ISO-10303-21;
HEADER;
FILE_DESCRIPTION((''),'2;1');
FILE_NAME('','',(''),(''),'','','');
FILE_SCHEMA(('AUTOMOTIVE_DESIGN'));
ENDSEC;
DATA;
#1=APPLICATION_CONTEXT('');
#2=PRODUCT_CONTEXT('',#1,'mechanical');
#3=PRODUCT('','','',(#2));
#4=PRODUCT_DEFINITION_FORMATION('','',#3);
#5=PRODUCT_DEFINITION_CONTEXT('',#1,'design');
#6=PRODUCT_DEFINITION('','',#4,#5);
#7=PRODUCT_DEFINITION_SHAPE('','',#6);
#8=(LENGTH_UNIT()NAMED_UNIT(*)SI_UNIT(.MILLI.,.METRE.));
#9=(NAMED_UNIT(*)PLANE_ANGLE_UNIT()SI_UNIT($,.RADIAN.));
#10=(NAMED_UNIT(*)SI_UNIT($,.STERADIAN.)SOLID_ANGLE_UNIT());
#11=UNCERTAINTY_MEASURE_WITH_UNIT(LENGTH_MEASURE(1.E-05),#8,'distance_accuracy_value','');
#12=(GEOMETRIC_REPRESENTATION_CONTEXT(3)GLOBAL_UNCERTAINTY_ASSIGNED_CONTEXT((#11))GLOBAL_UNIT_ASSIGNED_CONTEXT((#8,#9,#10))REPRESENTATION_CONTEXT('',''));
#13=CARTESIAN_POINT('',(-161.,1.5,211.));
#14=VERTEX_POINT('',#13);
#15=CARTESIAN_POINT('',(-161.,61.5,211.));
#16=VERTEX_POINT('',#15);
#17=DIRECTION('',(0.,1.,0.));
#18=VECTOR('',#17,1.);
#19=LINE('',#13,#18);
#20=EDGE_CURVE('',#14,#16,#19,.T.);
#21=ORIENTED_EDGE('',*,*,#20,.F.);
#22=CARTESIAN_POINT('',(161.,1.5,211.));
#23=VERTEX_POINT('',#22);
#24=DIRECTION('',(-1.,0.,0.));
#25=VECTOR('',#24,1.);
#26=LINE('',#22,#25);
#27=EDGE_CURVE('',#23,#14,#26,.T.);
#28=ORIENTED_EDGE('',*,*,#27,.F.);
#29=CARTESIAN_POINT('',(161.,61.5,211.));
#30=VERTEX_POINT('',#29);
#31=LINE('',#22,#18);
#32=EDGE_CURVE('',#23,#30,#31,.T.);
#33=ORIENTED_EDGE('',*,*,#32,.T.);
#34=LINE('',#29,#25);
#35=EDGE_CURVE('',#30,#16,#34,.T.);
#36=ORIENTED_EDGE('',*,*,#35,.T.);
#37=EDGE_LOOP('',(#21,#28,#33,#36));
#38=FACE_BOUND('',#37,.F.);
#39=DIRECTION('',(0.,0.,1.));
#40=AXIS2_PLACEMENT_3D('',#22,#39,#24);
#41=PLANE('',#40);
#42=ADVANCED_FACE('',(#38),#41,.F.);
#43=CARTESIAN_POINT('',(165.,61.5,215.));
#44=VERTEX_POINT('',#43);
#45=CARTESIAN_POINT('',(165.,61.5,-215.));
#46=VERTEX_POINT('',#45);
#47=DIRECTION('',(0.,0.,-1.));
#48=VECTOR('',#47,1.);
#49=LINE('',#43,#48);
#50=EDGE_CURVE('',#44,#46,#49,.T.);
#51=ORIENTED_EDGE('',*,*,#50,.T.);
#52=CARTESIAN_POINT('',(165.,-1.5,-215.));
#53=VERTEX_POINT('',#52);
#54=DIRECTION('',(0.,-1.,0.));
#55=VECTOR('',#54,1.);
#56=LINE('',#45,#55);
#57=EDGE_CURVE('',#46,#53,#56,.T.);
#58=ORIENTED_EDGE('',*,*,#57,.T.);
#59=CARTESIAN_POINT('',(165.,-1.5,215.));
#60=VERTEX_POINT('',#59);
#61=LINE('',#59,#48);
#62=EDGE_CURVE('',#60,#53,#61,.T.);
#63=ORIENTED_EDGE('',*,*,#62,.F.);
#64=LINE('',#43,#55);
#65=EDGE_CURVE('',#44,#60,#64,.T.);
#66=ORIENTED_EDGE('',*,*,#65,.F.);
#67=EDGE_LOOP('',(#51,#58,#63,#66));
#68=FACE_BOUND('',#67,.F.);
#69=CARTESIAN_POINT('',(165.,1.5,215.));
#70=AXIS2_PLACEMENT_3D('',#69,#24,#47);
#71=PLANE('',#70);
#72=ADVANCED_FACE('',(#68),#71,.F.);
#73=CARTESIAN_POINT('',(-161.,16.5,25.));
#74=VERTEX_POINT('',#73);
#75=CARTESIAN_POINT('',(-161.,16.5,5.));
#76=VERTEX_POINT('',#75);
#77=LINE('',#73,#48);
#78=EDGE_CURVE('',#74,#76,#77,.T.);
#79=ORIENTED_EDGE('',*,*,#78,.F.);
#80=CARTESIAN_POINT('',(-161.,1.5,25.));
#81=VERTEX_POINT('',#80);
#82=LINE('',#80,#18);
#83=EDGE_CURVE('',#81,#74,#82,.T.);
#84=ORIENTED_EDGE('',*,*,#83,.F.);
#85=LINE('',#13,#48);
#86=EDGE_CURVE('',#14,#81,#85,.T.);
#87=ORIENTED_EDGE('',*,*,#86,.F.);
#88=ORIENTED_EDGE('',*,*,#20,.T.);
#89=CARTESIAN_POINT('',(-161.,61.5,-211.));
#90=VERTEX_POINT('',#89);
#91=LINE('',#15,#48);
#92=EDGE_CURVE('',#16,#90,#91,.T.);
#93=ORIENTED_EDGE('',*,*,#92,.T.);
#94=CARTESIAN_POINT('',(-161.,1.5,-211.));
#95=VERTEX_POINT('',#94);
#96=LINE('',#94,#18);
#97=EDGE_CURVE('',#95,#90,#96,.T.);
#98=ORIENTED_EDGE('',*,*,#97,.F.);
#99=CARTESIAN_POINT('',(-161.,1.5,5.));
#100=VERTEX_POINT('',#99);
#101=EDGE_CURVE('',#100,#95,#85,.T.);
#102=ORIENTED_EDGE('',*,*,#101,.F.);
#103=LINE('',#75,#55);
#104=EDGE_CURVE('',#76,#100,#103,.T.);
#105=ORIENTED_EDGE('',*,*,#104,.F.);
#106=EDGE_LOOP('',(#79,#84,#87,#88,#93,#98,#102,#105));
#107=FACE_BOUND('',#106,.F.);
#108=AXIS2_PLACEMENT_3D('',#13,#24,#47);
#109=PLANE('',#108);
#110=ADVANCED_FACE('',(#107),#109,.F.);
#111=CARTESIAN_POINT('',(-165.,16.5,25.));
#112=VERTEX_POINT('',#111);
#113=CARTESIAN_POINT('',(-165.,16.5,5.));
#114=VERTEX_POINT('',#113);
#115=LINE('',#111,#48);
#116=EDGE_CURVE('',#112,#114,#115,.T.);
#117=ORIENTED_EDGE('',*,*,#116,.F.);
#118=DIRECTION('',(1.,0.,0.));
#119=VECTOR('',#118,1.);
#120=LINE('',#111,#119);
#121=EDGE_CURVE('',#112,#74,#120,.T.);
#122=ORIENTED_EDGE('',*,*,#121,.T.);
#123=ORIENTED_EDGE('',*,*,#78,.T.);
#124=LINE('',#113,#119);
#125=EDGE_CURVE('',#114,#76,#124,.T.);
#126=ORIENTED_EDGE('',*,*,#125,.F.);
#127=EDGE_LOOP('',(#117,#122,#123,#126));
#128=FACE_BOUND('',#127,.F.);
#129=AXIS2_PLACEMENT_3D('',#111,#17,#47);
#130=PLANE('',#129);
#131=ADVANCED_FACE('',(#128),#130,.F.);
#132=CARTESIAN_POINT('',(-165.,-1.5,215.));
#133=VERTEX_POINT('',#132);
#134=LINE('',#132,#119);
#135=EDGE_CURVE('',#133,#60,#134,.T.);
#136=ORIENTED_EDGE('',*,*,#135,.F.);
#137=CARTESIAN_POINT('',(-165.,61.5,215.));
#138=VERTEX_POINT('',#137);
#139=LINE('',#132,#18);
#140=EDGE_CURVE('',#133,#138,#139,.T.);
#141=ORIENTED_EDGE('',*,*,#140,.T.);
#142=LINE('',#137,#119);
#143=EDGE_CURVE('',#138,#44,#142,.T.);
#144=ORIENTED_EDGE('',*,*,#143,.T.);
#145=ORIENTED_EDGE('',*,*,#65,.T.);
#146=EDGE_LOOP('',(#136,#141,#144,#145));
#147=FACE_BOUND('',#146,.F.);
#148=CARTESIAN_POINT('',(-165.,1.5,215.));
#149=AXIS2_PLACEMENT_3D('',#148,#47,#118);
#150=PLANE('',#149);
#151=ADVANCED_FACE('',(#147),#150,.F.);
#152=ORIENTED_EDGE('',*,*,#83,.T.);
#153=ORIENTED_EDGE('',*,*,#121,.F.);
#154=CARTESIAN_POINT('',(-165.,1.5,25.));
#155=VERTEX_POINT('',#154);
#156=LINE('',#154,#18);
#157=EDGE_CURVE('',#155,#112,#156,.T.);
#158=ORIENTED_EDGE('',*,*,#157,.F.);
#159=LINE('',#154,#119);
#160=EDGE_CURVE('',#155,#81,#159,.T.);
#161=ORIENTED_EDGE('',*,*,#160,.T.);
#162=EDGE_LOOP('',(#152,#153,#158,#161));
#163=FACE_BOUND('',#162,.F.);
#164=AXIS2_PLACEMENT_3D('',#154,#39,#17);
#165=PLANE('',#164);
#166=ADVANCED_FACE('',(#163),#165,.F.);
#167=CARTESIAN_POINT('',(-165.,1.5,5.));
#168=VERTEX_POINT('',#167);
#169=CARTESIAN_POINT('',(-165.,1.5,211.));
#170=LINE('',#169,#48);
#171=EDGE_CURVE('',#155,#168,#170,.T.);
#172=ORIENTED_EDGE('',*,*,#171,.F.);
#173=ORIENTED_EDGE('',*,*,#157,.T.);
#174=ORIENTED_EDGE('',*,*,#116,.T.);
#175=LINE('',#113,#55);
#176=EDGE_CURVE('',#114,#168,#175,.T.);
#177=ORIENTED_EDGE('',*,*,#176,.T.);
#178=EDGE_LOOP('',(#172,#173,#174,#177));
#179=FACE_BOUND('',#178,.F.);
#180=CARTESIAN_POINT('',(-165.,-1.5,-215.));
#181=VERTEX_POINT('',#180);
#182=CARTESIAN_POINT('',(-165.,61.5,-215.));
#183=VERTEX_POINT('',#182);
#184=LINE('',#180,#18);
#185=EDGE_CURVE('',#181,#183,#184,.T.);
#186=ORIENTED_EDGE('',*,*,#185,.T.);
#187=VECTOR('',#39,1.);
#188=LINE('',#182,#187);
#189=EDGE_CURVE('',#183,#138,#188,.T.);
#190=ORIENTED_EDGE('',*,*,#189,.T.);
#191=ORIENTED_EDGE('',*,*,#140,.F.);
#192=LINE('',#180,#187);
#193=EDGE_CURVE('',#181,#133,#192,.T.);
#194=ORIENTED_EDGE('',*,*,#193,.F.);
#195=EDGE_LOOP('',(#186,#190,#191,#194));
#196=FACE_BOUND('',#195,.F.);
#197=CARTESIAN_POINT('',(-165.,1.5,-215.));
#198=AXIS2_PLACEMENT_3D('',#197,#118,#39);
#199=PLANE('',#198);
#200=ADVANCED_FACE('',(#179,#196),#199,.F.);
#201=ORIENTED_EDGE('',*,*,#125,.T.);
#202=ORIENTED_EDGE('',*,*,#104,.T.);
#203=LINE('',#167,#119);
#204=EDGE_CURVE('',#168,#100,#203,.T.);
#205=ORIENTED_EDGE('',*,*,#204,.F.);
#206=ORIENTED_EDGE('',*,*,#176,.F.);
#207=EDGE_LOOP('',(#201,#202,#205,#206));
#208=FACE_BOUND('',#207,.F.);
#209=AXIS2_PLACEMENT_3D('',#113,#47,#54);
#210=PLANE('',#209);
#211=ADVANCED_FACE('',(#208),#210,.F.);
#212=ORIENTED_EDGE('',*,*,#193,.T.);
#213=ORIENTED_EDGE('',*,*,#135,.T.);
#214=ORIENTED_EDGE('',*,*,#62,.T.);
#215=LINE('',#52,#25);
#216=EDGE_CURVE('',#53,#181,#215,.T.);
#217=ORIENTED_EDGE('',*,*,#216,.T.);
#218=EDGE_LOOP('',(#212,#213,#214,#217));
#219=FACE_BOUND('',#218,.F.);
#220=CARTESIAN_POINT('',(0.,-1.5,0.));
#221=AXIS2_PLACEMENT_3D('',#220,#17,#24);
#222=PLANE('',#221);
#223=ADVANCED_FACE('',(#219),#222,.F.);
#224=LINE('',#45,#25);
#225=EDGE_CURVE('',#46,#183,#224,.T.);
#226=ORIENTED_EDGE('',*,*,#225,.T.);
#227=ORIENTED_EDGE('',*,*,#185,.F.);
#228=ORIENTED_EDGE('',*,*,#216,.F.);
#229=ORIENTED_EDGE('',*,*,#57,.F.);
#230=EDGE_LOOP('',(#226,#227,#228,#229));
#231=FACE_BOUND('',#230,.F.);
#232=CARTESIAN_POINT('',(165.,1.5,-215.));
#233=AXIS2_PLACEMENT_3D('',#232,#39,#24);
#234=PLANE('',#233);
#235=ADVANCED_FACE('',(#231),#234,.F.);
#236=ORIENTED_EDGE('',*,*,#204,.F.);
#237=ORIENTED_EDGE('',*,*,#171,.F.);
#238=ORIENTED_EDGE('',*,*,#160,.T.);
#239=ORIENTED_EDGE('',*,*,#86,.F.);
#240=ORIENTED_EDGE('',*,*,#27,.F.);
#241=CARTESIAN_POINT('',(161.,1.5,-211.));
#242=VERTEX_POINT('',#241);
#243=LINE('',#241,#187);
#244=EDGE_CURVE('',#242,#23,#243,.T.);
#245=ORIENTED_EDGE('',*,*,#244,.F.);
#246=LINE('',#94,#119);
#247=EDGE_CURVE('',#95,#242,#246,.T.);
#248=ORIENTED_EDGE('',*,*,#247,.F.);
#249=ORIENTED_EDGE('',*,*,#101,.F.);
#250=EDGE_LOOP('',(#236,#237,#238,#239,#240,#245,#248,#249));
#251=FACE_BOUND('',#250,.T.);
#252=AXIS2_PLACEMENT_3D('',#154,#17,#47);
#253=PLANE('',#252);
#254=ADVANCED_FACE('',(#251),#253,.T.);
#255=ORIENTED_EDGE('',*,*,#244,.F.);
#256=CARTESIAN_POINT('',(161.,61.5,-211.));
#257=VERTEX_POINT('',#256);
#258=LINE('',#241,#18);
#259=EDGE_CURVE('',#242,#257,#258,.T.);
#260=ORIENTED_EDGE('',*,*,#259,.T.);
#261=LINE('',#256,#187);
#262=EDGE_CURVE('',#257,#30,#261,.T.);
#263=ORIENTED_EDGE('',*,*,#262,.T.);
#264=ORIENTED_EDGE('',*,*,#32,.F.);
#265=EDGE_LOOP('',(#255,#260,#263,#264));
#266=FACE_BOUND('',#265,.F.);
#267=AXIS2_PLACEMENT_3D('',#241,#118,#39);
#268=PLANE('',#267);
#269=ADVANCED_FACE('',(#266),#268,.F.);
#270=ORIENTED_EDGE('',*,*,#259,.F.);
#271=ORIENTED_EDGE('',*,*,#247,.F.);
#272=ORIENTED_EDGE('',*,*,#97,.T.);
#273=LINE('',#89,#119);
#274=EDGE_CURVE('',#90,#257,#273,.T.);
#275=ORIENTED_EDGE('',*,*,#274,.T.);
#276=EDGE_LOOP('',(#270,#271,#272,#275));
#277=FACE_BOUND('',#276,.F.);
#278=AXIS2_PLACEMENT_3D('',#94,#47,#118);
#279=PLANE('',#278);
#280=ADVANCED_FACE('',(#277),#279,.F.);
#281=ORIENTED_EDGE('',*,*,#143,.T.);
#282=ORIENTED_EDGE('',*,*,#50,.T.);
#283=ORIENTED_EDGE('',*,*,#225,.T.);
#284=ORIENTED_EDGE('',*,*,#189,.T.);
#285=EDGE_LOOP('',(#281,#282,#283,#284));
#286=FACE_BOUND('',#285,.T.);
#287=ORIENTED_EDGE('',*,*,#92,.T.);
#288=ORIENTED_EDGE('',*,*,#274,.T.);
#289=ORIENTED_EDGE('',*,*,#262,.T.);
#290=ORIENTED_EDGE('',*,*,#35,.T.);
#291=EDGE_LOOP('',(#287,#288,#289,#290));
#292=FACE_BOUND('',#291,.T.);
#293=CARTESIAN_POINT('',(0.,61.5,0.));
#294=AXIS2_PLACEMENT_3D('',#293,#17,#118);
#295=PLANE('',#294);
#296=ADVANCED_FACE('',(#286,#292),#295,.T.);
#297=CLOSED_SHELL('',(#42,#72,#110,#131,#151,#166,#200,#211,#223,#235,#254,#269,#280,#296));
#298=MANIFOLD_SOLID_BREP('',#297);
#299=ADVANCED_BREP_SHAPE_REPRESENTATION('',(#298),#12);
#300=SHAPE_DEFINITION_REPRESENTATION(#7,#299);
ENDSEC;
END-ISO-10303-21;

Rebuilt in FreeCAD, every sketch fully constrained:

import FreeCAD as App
import Part
import Sketcher
from FreeCAD import Vector


def add_polygon(sketch, points):
    """Adds a closed chain of lines whose ends are joined by coincident constraints."""
    first, n = sketch.GeometryCount, len(points)
    for a, b in zip(points, points[1:] + points[:1]):
        sketch.addGeometry(Part.LineSegment(App.Vector(*a, 0), App.Vector(*b, 0)), False)
    for i in range(n):
        sketch.addConstraint(Sketcher.Constraint("Coincident", first + i, 2, first + (i + 1) % n, 1))

doc = App.newDocument("Part")
params = doc.addObject("Spreadsheet::Sheet", "Params")
for row, (alias, value) in enumerate([
    ("sketch1_width", "330 mm"),
    ("sketch1_height", "430 mm"),
    ("pad1_length", "3 mm"),
    ("sketch2_width", "322 mm"),
    ("sketch2_height", "422 mm"),
    ("sketch2_width2", "330 mm"),
    ("sketch2_height2", "430 mm"),
    ("pad2_length", "60 mm"),
    ("sketch3_width", "15 mm"),
    ("sketch3_height", "20 mm"),
    ("pocket1_length", "4 mm"),
], start=1):
    params.set(f"A{row}", alias)
    params.set(f"B{row}", "=" + value)
    params.setAlias(f"B{row}", alias)

body = doc.addObject("PartDesign::Body", "Body")

# Sketch on XZ plane
sketch1 = body.newObject("Sketcher::SketchObject", "Sketch")
sketch1.AttachmentSupport = (doc.getObject("XZ_Plane"), [""])
sketch1.MapMode = "FlatFace"
add_polygon(sketch1, [(165, 215), (165, -215), (-165, -215), (-165, 215)])  # lines 0-3
sketch1.addConstraint(Sketcher.Constraint("Vertical", 0))
sketch1.addConstraint(Sketcher.Constraint("Horizontal", 1))
sketch1.addConstraint(Sketcher.Constraint("Vertical", 2))
sketch1.addConstraint(Sketcher.Constraint("Horizontal", 3))
sketch1.addConstraint(Sketcher.Constraint("Symmetric", 0, 2, 2, 2, -1, 1))
sketch1.addConstraint(Sketcher.Constraint("DistanceX", 1, 2, 1, 1, 330.0))
sketch1.addConstraint(Sketcher.Constraint("DistanceY", 0, 2, 0, 1, 430.0))
sketch1.setExpression("Constraints[9]", "Params.sketch1_width")
sketch1.setExpression("Constraints[10]", "Params.sketch1_height")
pad1 = body.newObject("PartDesign::Pad", "Pad")
pad1.Profile = sketch1
pad1.setExpression("Length", "Params.pad1_length")
pad1.Midplane = True

# Sketch on XZ plane
sketch2 = body.newObject("Sketcher::SketchObject", "Sketch001")
sketch2.AttachmentSupport = (doc.getObject("XZ_Plane"), [""])
sketch2.MapMode = "FlatFace"
sketch2.AttachmentOffset = App.Placement(Vector(0, 0, -1.5), App.Rotation())
add_polygon(sketch2, [(165, -215), (-165, -215), (-165, 215), (165, 215)])  # lines 0-3
add_polygon(sketch2, [(161, -211), (161, 211), (-161, 211), (-161, -211)])  # lines 4-7
sketch2.addConstraint(Sketcher.Constraint("Horizontal", 0))
sketch2.addConstraint(Sketcher.Constraint("Vertical", 1))
sketch2.addConstraint(Sketcher.Constraint("Horizontal", 2))
sketch2.addConstraint(Sketcher.Constraint("Vertical", 3))
sketch2.addConstraint(Sketcher.Constraint("Vertical", 4))
sketch2.addConstraint(Sketcher.Constraint("Horizontal", 5))
sketch2.addConstraint(Sketcher.Constraint("Vertical", 6))
sketch2.addConstraint(Sketcher.Constraint("Horizontal", 7))
sketch2.addConstraint(Sketcher.Constraint("Symmetric", 0, 2, 2, 2, -1, 1))
sketch2.addConstraint(Sketcher.Constraint("Symmetric", 4, 2, 6, 2, -1, 1))
sketch2.addConstraint(Sketcher.Constraint("DistanceX", 5, 2, 5, 1, 322.0))
sketch2.addConstraint(Sketcher.Constraint("DistanceY", 4, 1, 4, 2, 422.0))
sketch2.addConstraint(Sketcher.Constraint("DistanceX", 0, 2, 0, 1, 330.0))
sketch2.addConstraint(Sketcher.Constraint("DistanceY", 1, 1, 1, 2, 430.0))
sketch2.setExpression("Constraints[18]", "Params.sketch2_width")
sketch2.setExpression("Constraints[19]", "Params.sketch2_height")
sketch2.setExpression("Constraints[20]", "Params.sketch2_width2")
sketch2.setExpression("Constraints[21]", "Params.sketch2_height2")
pad2 = body.newObject("PartDesign::Pad", "Pad001")
pad2.Profile = sketch2
pad2.setExpression("Length", "Params.pad2_length")
pad2.Reversed = True

# Sketch on YZ plane
sketch3 = body.newObject("Sketcher::SketchObject", "Sketch002")
sketch3.AttachmentSupport = (doc.getObject("YZ_Plane"), [""])
sketch3.MapMode = "FlatFace"
sketch3.AttachmentOffset = App.Placement(Vector(0, 0, -165), App.Rotation())
add_polygon(sketch3, [(2, 5), (2, 25), (16, 25), (16, 5)])  # lines 0-3
sketch3.addConstraint(Sketcher.Constraint("Vertical", 0))
sketch3.addConstraint(Sketcher.Constraint("Horizontal", 1))
sketch3.addConstraint(Sketcher.Constraint("Vertical", 2))
sketch3.addConstraint(Sketcher.Constraint("Horizontal", 3))
sketch3.addConstraint(Sketcher.Constraint("DistanceX", 1, 1, 1, 2, 15.0))
sketch3.addConstraint(Sketcher.Constraint("DistanceY", 0, 1, 0, 2, 20.0))
sketch3.addConstraint(Sketcher.Constraint("DistanceY", -1, 1, 0, 2, 25.0))
sketch3.addConstraint(Sketcher.Constraint("DistanceX", -1, 1, 0, 2, 1.5))
sketch3.setExpression("Constraints[8]", "Params.sketch3_width")
sketch3.setExpression("Constraints[9]", "Params.sketch3_height")
pocket1 = body.newObject("PartDesign::Pocket", "Pocket")
pocket1.Profile = sketch3
pocket1.setExpression("Length", "Params.pocket1_length")
pocket1.Reversed = True

doc.recompute()
